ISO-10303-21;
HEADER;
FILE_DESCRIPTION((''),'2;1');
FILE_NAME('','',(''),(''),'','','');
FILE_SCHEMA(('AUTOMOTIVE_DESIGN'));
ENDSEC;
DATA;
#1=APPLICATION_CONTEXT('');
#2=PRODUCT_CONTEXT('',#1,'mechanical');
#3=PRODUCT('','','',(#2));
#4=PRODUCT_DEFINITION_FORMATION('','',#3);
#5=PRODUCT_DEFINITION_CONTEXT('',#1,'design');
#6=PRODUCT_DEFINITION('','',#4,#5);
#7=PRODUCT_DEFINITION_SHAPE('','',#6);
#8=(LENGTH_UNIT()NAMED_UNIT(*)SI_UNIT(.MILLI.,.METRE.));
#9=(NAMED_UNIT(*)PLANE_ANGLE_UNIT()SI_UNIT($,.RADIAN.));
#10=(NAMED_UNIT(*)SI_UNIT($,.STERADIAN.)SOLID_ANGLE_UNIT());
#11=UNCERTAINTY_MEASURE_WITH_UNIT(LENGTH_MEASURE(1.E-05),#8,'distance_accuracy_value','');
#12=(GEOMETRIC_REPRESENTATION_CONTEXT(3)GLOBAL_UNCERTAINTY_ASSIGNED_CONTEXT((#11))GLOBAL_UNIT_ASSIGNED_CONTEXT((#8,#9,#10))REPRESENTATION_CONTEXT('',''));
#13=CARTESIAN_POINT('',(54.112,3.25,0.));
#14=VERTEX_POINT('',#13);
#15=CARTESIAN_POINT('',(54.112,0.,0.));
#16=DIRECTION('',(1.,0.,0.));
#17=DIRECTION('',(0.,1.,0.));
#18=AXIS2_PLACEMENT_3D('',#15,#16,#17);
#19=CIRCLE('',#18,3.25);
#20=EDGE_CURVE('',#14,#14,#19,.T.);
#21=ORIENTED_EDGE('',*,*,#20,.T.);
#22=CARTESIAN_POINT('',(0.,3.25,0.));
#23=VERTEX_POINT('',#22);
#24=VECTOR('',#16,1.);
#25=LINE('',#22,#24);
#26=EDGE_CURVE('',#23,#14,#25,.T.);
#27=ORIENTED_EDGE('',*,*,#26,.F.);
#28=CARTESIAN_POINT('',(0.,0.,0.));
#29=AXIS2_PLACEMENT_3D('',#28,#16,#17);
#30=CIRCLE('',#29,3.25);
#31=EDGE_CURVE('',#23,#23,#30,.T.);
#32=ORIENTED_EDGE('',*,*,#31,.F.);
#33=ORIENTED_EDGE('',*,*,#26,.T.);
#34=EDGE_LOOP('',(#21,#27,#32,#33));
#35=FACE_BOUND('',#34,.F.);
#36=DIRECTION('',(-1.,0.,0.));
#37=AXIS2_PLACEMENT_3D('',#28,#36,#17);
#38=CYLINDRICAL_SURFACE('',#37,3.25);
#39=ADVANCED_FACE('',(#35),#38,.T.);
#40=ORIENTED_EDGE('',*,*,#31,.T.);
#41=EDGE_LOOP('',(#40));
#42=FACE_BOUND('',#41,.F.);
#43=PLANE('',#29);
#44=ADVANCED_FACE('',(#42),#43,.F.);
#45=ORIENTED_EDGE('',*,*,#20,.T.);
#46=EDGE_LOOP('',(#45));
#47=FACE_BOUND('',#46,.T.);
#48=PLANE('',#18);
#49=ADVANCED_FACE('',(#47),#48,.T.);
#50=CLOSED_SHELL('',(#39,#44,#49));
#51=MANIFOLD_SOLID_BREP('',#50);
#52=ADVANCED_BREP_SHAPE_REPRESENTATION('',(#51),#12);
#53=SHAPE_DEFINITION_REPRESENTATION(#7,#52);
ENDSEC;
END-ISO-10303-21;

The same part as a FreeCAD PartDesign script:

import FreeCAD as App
import Part
import Sketcher

V = App.Vector

doc = App.newDocument("Part")
body = doc.addObject("PartDesign::Body", "Body")

# Sketch on YZ plane
sketch1 = body.newObject("Sketcher::SketchObject", "Sketch")
sketch1.AttachmentSupport = (doc.getObject("YZ_Plane"), [""])
sketch1.MapMode = "FlatFace"
sketch1.addGeometry(Part.Circle(V(0, 0, 0), V(0, 0, 1), 3.25), False)
sketch1.addConstraint(Sketcher.Constraint("Coincident", 0, 3, -1, 1))
sketch1.addConstraint(Sketcher.Constraint("Diameter", 0, 6.5))
pad1 = body.newObject("PartDesign::Pad", "Pad")
pad1.Profile = sketch1
pad1.Length = 54.112

doc.recompute()
